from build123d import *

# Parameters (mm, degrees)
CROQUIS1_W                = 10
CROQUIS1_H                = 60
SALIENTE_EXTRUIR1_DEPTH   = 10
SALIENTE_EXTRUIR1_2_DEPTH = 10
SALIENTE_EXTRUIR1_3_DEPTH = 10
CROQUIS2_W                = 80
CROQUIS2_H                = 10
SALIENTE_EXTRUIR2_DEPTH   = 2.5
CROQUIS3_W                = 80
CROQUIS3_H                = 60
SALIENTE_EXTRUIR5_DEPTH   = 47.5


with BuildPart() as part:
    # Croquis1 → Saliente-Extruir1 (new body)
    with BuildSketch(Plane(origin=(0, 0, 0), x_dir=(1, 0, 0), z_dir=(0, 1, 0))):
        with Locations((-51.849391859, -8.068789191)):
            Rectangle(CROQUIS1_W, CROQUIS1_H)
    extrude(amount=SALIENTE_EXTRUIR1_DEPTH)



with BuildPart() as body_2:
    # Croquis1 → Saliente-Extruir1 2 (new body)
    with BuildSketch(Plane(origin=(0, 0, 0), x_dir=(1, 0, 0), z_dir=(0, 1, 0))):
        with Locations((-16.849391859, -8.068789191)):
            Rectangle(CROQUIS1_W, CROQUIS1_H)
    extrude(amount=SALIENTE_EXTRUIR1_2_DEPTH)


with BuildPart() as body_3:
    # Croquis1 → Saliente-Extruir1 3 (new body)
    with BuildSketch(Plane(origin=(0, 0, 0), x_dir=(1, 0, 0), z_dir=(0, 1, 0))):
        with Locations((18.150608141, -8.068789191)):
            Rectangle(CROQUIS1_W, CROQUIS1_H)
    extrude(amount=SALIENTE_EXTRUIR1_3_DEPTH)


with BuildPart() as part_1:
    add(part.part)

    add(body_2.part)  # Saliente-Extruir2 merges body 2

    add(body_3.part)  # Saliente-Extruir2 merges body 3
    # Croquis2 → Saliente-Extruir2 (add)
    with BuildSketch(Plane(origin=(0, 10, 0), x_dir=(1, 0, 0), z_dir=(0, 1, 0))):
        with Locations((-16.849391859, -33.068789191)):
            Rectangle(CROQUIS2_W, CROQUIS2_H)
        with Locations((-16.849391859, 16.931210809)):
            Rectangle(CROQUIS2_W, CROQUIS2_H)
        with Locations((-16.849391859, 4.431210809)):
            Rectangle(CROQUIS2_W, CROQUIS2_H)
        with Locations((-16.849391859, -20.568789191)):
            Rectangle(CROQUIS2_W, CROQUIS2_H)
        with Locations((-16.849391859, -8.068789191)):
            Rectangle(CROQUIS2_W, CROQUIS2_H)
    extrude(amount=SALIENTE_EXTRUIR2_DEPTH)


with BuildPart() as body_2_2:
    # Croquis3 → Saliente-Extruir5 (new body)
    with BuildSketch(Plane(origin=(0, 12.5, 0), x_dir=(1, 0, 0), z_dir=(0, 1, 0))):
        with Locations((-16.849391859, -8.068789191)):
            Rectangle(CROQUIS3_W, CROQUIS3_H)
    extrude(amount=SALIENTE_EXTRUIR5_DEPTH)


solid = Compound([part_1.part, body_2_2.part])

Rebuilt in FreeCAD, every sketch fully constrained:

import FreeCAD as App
import Part
import Sketcher
Q = App.Units.Quantity

doc = App.newDocument("Part")
body = doc.addObject("PartDesign::Body", "Body")

# Sketch on XZ plane
sketch1 = body.newObject("Sketcher::SketchObject", "Sketch")
sketch1.AttachmentSupport = (doc.getObject("XZ_Plane"), [""])
sketch1.MapMode = "FlatFace"
sketch1.addGeometry(Part.LineSegment(App.Vector(-57, -22, 0), App.Vector(-57, 38, 0)), False)
sketch1.addGeometry(Part.LineSegment(App.Vector(-57, 38, 0), App.Vector(-47, 38, 0)), False)
sketch1.addGeometry(Part.LineSegment(App.Vector(-47, 38, 0), App.Vector(-47, -22, 0)), False)
sketch1.addGeometry(Part.LineSegment(App.Vector(-47, -22, 0), App.Vector(-57, -22, 0)), False)
sketch1.addConstraint(Sketcher.Constraint("Coincident", 0, 2, 1, 1))
sketch1.addConstraint(Sketcher.Constraint("Coincident", 1, 2, 2, 1))
sketch1.addConstraint(Sketcher.Constraint("Coincident", 2, 2, 3, 1))
sketch1.addConstraint(Sketcher.Constraint("Coincident", 3, 2, 0, 1))
sketch1.addConstraint(Sketcher.Constraint("Vertical", 0))
sketch1.addConstraint(Sketcher.Constraint("Horizontal", 1))
sketch1.addConstraint(Sketcher.Constraint("Vertical", 2))
sketch1.addConstraint(Sketcher.Constraint("Horizontal", 3))
sketch1.addConstraint(Sketcher.Constraint("DistanceX", 1, 1, 1, 2, Q("10 mm")))
sketch1.addConstraint(Sketcher.Constraint("DistanceY", 0, 1, 0, 2, Q("60 mm")))
sketch1.addConstraint(Sketcher.Constraint("DistanceX", 0, 2, -1, 1, Q("56.849392 mm")))
sketch1.addConstraint(Sketcher.Constraint("DistanceY", -1, 1, 0, 2, Q("38.068789 mm")))
pad1 = body.newObject("PartDesign::Pad", "Pad")
pad1.Profile = sketch1
pad1.Length = 10
pad1.Reversed = True
body2 = doc.addObject("PartDesign::Body", "Body001")

# Sketch on XZ plane
sketch2 = body2.newObject("Sketcher::SketchObject", "Sketch001")
sketch2.AttachmentSupport = (doc.getObject("XZ_Plane001"), [""])
sketch2.MapMode = "FlatFace"
sketch2.addGeometry(Part.LineSegment(App.Vector(-22, -22, 0), App.Vector(-22, 38, 0)), False)
sketch2.addGeometry(Part.LineSegment(App.Vector(-22, 38, 0), App.Vector(-12, 38, 0)), False)
sketch2.addGeometry(Part.LineSegment(App.Vector(-12, 38, 0), App.Vector(-12, -22, 0)), False)
sketch2.addGeometry(Part.LineSegment(App.Vector(-12, -22, 0), App.Vector(-22, -22, 0)), False)
sketch2.addConstraint(Sketcher.Constraint("Coincident", 0, 2, 1, 1))
sketch2.addConstraint(Sketcher.Constraint("Coincident", 1, 2, 2, 1))
sketch2.addConstraint(Sketcher.Constraint("Coincident", 2, 2, 3, 1))
sketch2.addConstraint(Sketcher.Constraint("Coincident", 3, 2, 0, 1))
sketch2.addConstraint(Sketcher.Constraint("Vertical", 0))
sketch2.addConstraint(Sketcher.Constraint("Horizontal", 1))
sketch2.addConstraint(Sketcher.Constraint("Vertical", 2))
sketch2.addConstraint(Sketcher.Constraint("Horizontal", 3))
sketch2.addConstraint(Sketcher.Constraint("DistanceX", 1, 1, 1, 2, Q("10 mm")))
sketch2.addConstraint(Sketcher.Constraint("DistanceY", 0, 1, 0, 2, Q("60 mm")))
sketch2.addConstraint(Sketcher.Constraint("DistanceX", 0, 2, -1, 1, Q("21.849392 mm")))
sketch2.addConstraint(Sketcher.Constraint("DistanceY", -1, 1, 0, 2, Q("38.068789 mm")))
pad2 = body2.newObject("PartDesign::Pad", "Pad001")
pad2.Profile = sketch2
pad2.Length = 10
pad2.Reversed = True
body3 = doc.addObject("PartDesign::Body", "Body002")

# Sketch on XZ plane
sketch3 = body3.newObject("Sketcher::SketchObject", "Sketch002")
sketch3.AttachmentSupport = (doc.getObject("XZ_Plane002"), [""])
sketch3.MapMode = "FlatFace"
sketch3.addGeometry(Part.LineSegment(App.Vector(13, -22, 0), App.Vector(13, 38, 0)), False)
sketch3.addGeometry(Part.LineSegment(App.Vector(13, 38, 0), App.Vector(23, 38, 0)), False)
sketch3.addGeometry(Part.LineSegment(App.Vector(23, 38, 0), App.Vector(23, -22, 0)), False)
sketch3.addGeometry(Part.LineSegment(App.Vector(23, -22, 0), App.Vector(13, -22, 0)), False)
sketch3.addConstraint(Sketcher.Constraint("Coincident", 0, 2, 1, 1))
sketch3.addConstraint(Sketcher.Constraint("Coincident", 1, 2, 2, 1))
sketch3.addConstraint(Sketcher.Constraint("Coincident", 2, 2, 3, 1))
sketch3.addConstraint(Sketcher.Constraint("Coincident", 3, 2, 0, 1))
sketch3.addConstraint(Sketcher.Constraint("Vertical", 0))
sketch3.addConstraint(Sketcher.Constraint("Horizontal", 1))
sketch3.addConstraint(Sketcher.Constraint("Vertical", 2))
sketch3.addConstraint(Sketcher.Constraint("Horizontal", 3))
sketch3.addConstraint(Sketcher.Constraint("DistanceX", 1, 1, 1, 2, Q("10 mm")))
sketch3.addConstraint(Sketcher.Constraint("DistanceY", 0, 1, 0, 2, Q("60 mm")))
sketch3.addConstraint(Sketcher.Constraint("DistanceX", -1, 1, 0, 2, Q("13.150608 mm")))
sketch3.addConstraint(Sketcher.Constraint("DistanceY", -1, 1, 0, 2, Q("38.068789 mm")))
pad3 = body3.newObject("PartDesign::Pad", "Pad002")
pad3.Profile = sketch3
pad3.Length = 10
pad3.Reversed = True
body.AllowCompound = True
doc.recompute()

boolean = body.newObject("PartDesign::Boolean", "Boolean")
boolean.Type = "Fuse"
boolean.addObjects([body2])
doc.recompute()

boolean2 = body.newObject("PartDesign::Boolean", "Boolean001")
boolean2.Type = "Fuse"
boolean2.addObjects([body3])

# Sketch on XZ plane
sketch4 = body.newObject("Sketcher::SketchObject", "Sketch003")
sketch4.AttachmentSupport = (doc.getObject("XZ_Plane"), [""])
sketch4.MapMode = "FlatFace"
sketch4.AttachmentOffset = App.Placement(App.Vector(0, 0, -10), App.Rotation())
sketch4.addGeometry(Part.LineSegment(App.Vector(-57, 28, 0), App.Vector(-57, 38, 0)), False)
sketch4.addGeometry(Part.LineSegment(App.Vector(-57, 38, 0), App.Vector(23, 38, 0)), False)
sketch4.addGeometry(Part.LineSegment(App.Vector(23, 38, 0), App.Vector(23, 28, 0)), False)
sketch4.addGeometry(Part.LineSegment(App.Vector(23, 28, 0), App.Vector(-57, 28, 0)), False)
sketch4.addGeometry(Part.LineSegment(App.Vector(-57, -22, 0), App.Vector(-57, -12, 0)), False)
sketch4.addGeometry(Part.LineSegment(App.Vector(-57, -12, 0), App.Vector(23, -12, 0)), False)
sketch4.addGeometry(Part.LineSegment(App.Vector(23, -12, 0), App.Vector(23, -22, 0)), False)
sketch4.addGeometry(Part.LineSegment(App.Vector(23, -22, 0), App.Vector(-57, -22, 0)), False)
sketch4.addGeometry(Part.LineSegment(App.Vector(-57, -9, 0), App.Vector(-57, 1, 0)), False)
sketch4.addGeometry(Part.LineSegment(App.Vector(-57, 1, 0), App.Vector(23, 1, 0)), False)
sketch4.addGeometry(Part.LineSegment(App.Vector(23, 1, 0), App.Vector(23, -9, 0)), False)
sketch4.addGeometry(Part.LineSegment(App.Vector(23, -9, 0), App.Vector(-57, -9, 0)), False)
sketch4.addGeometry(Part.LineSegment(App.Vector(-57, 16, 0), App.Vector(-57, 26, 0)), False)
sketch4.addGeometry(Part.LineSegment(App.Vector(-57, 26, 0), App.Vector(23, 26, 0)), False)
sketch4.addGeometry(Part.LineSegment(App.Vector(23, 26, 0), App.Vector(23, 16, 0)), False)
sketch4.addGeometry(Part.LineSegment(App.Vector(23, 16, 0), App.Vector(-57, 16, 0)), False)
sketch4.addGeometry(Part.LineSegment(App.Vector(-57, 3, 0), App.Vector(-57, 13, 0)), False)
sketch4.addGeometry(Part.LineSegment(App.Vector(-57, 13, 0), App.Vector(23, 13, 0)), False)
sketch4.addGeometry(Part.LineSegment(App.Vector(23, 13, 0), App.Vector(23, 3, 0)), False)
sketch4.addGeometry(Part.LineSegment(App.Vector(23, 3, 0), App.Vector(-57, 3, 0)), False)
sketch4.addConstraint(Sketcher.Constraint("Coincident", 0, 2, 1, 1))
sketch4.addConstraint(Sketcher.Constraint("Coincident", 1, 2, 2, 1))
sketch4.addConstraint(Sketcher.Constraint("Coincident", 2, 2, 3, 1))
sketch4.addConstraint(Sketcher.Constraint("Coincident", 3, 2, 0, 1))
sketch4.addConstraint(Sketcher.Constraint("Coincident", 4, 2, 5, 1))
sketch4.addConstraint(Sketcher.Constraint("Coincident", 5, 2, 6, 1))
sketch4.addConstraint(Sketcher.Constraint("Coincident", 6, 2, 7, 1))
sketch4.addConstraint(Sketcher.Constraint("Coincident", 7, 2, 4, 1))
sketch4.addConstraint(Sketcher.Constraint("Coincident", 8, 2, 9, 1))
sketch4.addConstraint(Sketcher.Constraint("Coincident", 9, 2, 10, 1))
sketch4.addConstraint(Sketcher.Constraint("Coincident", 10, 2, 11, 1))
sketch4.addConstraint(Sketcher.Constraint("Coincident", 11, 2, 8, 1))
sketch4.addConstraint(Sketcher.Constraint("Coincident", 12, 2, 13, 1))
sketch4.addConstraint(Sketcher.Constraint("Coincident", 13, 2, 14, 1))
sketch4.addConstraint(Sketcher.Constraint("Coincident", 14, 2, 15, 1))
sketch4.addConstraint(Sketcher.Constraint("Coincident", 15, 2, 12, 1))
sketch4.addConstraint(Sketcher.Constraint("Coincident", 16, 2, 17, 1))
sketch4.addConstraint(Sketcher.Constraint("Coincident", 17, 2, 18, 1))
sketch4.addConstraint(Sketcher.Constraint("Coincident", 18, 2, 19, 1))
sketch4.addConstraint(Sketcher.Constraint("Coincident", 19, 2, 16, 1))
sketch4.addConstraint(Sketcher.Constraint("Vertical", 0))
sketch4.addConstraint(Sketcher.Constraint("Horizontal", 1))
sketch4.addConstraint(Sketcher.Constraint("Vertical", 2))
sketch4.addConstraint(Sketcher.Constraint("Horizontal", 3))
sketch4.addConstraint(Sketcher.Constraint("Vertical", 4))
sketch4.addConstraint(Sketcher.Constraint("Horizontal", 5))
sketch4.addConstraint(Sketcher.Constraint("Vertical", 6))
sketch4.addConstraint(Sketcher.Constraint("Horizontal", 7))
sketch4.addConstraint(Sketcher.Constraint("Vertical", 8))
sketch4.addConstraint(Sketcher.Constraint("Horizontal", 9))
sketch4.addConstraint(Sketcher.Constraint("Vertical", 10))
sketch4.addConstraint(Sketcher.Constraint("Horizontal", 11))
sketch4.addConstraint(Sketcher.Constraint("Vertical", 12))
sketch4.addConstraint(Sketcher.Constraint("Horizontal", 13))
sketch4.addConstraint(Sketcher.Constraint("Vertical", 14))
sketch4.addConstraint(Sketcher.Constraint("Horizontal", 15))
sketch4.addConstraint(Sketcher.Constraint("Vertical", 16))
sketch4.addConstraint(Sketcher.Constraint("Horizontal", 17))
sketch4.addConstraint(Sketcher.Constraint("Vertical", 18))
sketch4.addConstraint(Sketcher.Constraint("Horizontal", 19))
sketch4.addConstraint(Sketcher.Constraint("Vertical", 3, 2, 4, 2))
sketch4.addConstraint(Sketcher.Constraint("Vertical", 2, 2, 5, 2))
sketch4.addConstraint(Sketcher.Constraint("Vertical", 7, 2, 8, 2))
sketch4.addConstraint(Sketcher.Constraint("Vertical", 6, 2, 9, 2))
sketch4.addConstraint(Sketcher.Constraint("Vertical", 11, 2, 12, 2))
sketch4.addConstraint(Sketcher.Constraint("Vertical", 10, 2, 13, 2))
sketch4.addConstraint(Sketcher.Constraint("Vertical", 15, 2, 16, 2))
sketch4.addConstraint(Sketcher.Constraint("Vertical", 14, 2, 17, 2))
sketch4.addConstraint(Sketcher.Constraint("Equal", 2, 4))
sketch4.addConstraint(Sketcher.Constraint("Equal", 6, 8))
sketch4.addConstraint(Sketcher.Constraint("Equal", 10, 12))
sketch4.addConstraint(Sketcher.Constraint("Equal", 14, 16))
sketch4.addConstraint(Sketcher.Constraint("DistanceX", 1, 1, 1, 2, Q("80 mm")))
sketch4.addConstraint(Sketcher.Constraint("DistanceY", 0, 1, 0, 2, Q("10 mm")))
sketch4.addConstraint(Sketcher.Constraint("DistanceY", 4, 2, 3, 2, Q("40 mm")))
sketch4.addConstraint(Sketcher.Constraint("DistanceY", 8, 2, 12, 2, Q("25 mm")))
sketch4.addConstraint(Sketcher.Constraint("DistanceY", 16, 2, 3, 2, Q("15 mm")))
sketch4.addConstraint(Sketcher.Constraint("DistanceY", 4, 2, 8, 2, Q("12.5 mm")))
sketch4.addConstraint(Sketcher.Constraint("DistanceX", 0, 2, -1, 1, Q("56.849392 mm")))
sketch4.addConstraint(Sketcher.Constraint("DistanceY", -1, 1, 0, 2, Q("38.068789 mm")))
pad4 = body.newObject("PartDesign::Pad", "Pad003")
pad4.Profile = sketch4
pad4.Length = 2.5
pad4.Reversed = True
body4 = doc.addObject("PartDesign::Body", "Body003")

# Sketch on XZ plane
sketch5 = body4.newObject("Sketcher::SketchObject", "Sketch004")
sketch5.AttachmentSupport = (doc.getObject("XZ_Plane003"), [""])
sketch5.MapMode = "FlatFace"
sketch5.AttachmentOffset = App.Placement(App.Vector(0, 0, -12.5), App.Rotation())
sketch5.addGeometry(Part.LineSegment(App.Vector(-57, -22, 0), App.Vector(-57, 38, 0)), False)
sketch5.addGeometry(Part.LineSegment(App.Vector(-57, 38, 0), App.Vector(23, 38, 0)), False)
sketch5.addGeometry(Part.LineSegment(App.Vector(23, 38, 0), App.Vector(23, -22, 0)), False)
sketch5.addGeometry(Part.LineSegment(App.Vector(23, -22, 0), App.Vector(-57, -22, 0)), False)
sketch5.addConstraint(Sketcher.Constraint("Coincident", 0, 2, 1, 1))
sketch5.addConstraint(Sketcher.Constraint("Coincident", 1, 2, 2, 1))
sketch5.addConstraint(Sketcher.Constraint("Coincident", 2, 2, 3, 1))
sketch5.addConstraint(Sketcher.Constraint("Coincident", 3, 2, 0, 1))
sketch5.addConstraint(Sketcher.Constraint("Vertical", 0))
sketch5.addConstraint(Sketcher.Constraint("Horizontal", 1))
sketch5.addConstraint(Sketcher.Constraint("Vertical", 2))
sketch5.addConstraint(Sketcher.Constraint("Horizontal", 3))
sketch5.addConstraint(Sketcher.Constraint("DistanceX", 1, 1, 1, 2, Q("80 mm")))
sketch5.addConstraint(Sketcher.Constraint("DistanceY", 0, 1, 0, 2, Q("60 mm")))
sketch5.addConstraint(Sketcher.Constraint("DistanceX", 0, 2, -1, 1, Q("56.849392 mm")))
sketch5.addConstraint(Sketcher.Constraint("DistanceY", -1, 1, 0, 2, Q("38.068789 mm")))
pad5 = body4.newObject("PartDesign::Pad", "Pad004")
pad5.Profile = sketch5
pad5.Length = 47.5
pad5.Reversed = True

doc.recompute()
